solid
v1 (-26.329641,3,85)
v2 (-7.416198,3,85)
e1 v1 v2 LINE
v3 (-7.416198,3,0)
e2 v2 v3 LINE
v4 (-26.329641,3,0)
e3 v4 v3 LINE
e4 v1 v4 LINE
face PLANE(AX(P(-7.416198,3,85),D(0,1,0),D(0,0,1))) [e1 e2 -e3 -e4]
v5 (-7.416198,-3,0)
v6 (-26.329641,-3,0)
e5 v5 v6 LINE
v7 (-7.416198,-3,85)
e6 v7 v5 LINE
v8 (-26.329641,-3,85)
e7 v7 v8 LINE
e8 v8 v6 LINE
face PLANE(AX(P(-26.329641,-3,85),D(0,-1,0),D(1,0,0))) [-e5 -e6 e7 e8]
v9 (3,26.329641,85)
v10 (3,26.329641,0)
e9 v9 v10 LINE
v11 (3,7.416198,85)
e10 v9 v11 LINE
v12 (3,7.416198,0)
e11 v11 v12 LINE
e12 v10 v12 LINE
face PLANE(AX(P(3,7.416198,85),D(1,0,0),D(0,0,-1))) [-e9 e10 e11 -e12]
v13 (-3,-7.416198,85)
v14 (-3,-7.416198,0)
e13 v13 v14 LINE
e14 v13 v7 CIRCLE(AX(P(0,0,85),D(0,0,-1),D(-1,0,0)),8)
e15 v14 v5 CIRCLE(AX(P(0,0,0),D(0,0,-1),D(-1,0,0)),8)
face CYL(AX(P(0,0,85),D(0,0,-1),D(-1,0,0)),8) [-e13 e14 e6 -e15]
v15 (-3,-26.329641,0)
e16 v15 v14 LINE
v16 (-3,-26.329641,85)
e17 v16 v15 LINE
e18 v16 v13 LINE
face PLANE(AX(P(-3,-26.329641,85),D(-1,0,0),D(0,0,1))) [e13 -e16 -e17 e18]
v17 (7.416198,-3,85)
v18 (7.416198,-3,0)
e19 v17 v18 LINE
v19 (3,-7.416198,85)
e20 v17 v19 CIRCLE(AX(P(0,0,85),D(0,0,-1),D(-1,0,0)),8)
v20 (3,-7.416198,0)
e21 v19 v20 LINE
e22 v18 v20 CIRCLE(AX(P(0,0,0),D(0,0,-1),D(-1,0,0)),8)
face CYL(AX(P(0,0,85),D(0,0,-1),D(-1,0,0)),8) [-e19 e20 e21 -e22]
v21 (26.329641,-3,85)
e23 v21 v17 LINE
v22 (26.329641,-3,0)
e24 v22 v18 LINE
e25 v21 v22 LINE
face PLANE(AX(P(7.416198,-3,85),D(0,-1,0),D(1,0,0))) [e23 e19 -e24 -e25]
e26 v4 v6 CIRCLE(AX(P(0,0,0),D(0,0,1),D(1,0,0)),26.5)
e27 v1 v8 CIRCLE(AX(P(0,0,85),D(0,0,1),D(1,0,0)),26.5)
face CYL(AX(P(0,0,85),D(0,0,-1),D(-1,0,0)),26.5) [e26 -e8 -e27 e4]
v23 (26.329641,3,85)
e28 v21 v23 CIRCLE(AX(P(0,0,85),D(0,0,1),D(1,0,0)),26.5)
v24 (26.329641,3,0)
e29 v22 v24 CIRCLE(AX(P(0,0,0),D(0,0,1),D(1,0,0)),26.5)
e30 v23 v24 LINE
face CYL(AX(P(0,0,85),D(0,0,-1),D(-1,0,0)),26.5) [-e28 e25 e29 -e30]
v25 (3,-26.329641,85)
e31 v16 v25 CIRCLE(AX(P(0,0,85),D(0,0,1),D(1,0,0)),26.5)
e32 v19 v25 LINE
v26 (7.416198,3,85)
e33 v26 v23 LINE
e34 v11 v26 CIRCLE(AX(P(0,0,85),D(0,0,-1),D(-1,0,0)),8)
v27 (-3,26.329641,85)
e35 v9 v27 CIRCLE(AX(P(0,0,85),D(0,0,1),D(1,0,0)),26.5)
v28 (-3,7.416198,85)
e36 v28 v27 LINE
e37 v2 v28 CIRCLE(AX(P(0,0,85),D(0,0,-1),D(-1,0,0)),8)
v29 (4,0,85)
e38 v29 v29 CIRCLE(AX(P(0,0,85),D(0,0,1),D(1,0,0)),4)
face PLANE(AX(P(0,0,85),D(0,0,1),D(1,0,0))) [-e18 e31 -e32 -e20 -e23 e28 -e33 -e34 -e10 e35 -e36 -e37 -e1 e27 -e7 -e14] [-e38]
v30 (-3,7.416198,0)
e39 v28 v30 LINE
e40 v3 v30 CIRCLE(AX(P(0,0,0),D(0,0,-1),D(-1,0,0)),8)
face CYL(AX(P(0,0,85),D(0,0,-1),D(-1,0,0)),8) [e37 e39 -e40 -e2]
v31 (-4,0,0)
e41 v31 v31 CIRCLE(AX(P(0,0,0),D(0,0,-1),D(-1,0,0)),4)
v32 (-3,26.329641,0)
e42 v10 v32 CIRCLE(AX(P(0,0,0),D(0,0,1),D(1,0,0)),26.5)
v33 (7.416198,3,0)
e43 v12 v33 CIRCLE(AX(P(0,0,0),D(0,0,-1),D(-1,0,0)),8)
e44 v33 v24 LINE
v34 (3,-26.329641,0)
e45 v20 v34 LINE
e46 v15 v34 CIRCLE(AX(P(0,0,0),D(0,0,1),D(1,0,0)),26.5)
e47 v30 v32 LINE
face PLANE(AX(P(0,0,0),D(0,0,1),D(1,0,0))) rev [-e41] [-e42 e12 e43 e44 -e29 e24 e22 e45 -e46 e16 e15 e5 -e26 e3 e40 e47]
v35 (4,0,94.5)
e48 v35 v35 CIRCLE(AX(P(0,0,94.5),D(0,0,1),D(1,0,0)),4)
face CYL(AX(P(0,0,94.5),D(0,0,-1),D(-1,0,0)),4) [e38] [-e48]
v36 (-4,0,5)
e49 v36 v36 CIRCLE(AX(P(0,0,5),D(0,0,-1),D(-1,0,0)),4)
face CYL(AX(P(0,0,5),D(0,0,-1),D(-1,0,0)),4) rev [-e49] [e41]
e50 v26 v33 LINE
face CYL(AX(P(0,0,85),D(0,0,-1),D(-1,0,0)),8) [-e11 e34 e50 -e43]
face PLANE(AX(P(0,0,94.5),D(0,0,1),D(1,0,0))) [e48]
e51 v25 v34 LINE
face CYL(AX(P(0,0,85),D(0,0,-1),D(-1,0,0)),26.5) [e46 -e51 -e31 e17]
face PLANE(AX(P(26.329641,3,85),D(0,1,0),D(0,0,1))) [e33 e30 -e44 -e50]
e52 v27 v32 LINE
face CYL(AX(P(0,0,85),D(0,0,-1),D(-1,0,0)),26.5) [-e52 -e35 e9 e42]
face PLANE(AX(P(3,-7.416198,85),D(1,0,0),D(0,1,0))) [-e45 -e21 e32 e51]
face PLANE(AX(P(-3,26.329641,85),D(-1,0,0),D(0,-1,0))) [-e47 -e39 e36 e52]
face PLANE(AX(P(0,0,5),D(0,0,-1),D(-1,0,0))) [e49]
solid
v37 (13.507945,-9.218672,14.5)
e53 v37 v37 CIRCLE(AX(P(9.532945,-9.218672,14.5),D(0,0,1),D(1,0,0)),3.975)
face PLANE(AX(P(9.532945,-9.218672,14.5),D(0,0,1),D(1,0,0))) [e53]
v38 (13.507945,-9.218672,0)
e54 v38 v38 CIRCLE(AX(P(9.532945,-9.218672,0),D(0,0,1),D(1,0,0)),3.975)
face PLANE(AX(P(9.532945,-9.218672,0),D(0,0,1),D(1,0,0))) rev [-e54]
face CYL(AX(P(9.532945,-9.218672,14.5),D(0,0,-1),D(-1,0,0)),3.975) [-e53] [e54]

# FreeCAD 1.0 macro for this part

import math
import FreeCAD as App
import Part
import Sketcher
from FreeCAD import Vector


def add_polygon(sketch, points):
    """Adds a closed chain of lines whose ends are joined by coincident constraints."""
    first, n = sketch.GeometryCount, len(points)
    for a, b in zip(points, points[1:] + points[:1]):
        sketch.addGeometry(Part.LineSegment(App.Vector(*a, 0), App.Vector(*b, 0)), False)
    for i in range(n):
        sketch.addConstraint(Sketcher.Constraint("Coincident", first + i, 2, first + (i + 1) % n, 1))

doc = App.newDocument("Part")
body = doc.addObject("PartDesign::Body", "Body")

# Sketch on XY plane
sketch1 = doc.addObject("Sketcher::SketchObject", "Sketch")
body.addObject(sketch1)
sketch1.AttachmentSupport = (doc.XY_Plane, [""])
sketch1.MapMode = "FlatFace"
sketch1.addGeometry(Part.Circle(Vector(0, 0, 0), Vector(0, 0, 1), 26.5), False)
sketch1.addConstraint([
    Sketcher.Constraint("Coincident", 0, 3, -1, 1),
    Sketcher.Constraint("Diameter", 0, 53.0),
])
pad1 = doc.addObject("PartDesign::Pad", "Pad")
body.addObject(pad1)
pad1.Profile = sketch1
pad1.Length = 85

# Sketch on XY plane
sketch2 = doc.addObject("Sketcher::SketchObject", "Sketch001")
body.addObject(sketch2)
sketch2.AttachmentSupport = (doc.XY_Plane, [""])
sketch2.MapMode = "FlatFace"
sketch2.addGeometry(Part.Circle(Vector(0, 0, 0), Vector(0, 0, 1), 4), False)
sketch2.addConstraint([
    Sketcher.Constraint("Coincident", 0, 3, -1, 1),
    Sketcher.Constraint("Diameter", 0, 8.0),
])
pocket1 = doc.addObject("PartDesign::Pocket", "Pocket")
body.addObject(pocket1)
pocket1.Profile = sketch2
pocket1.Length = 5
pocket1.Reversed = True

# Sketch on XY plane
sketch3 = doc.addObject("Sketcher::SketchObject", "Sketch002")
body.addObject(sketch3)
sketch3.AttachmentSupport = (doc.XY_Plane, [""])
sketch3.MapMode = "FlatFace"
add_polygon(sketch3, [(38.833, 38.833), (38.833, -38.833), (-38.833, -38.833), (-38.833, 38.833)])  # lines 0-3
sketch3.addGeometry(Part.ArcOfCircle(Part.Circle(Vector(0, 0, 0), Vector(0, 0, 1), 26.5), math.radians(-6.50025), math.radians(6.50025)), False)  # 4
sketch3.addGeometry(Part.LineSegment(Vector(26.329641, 3, 0), Vector(7.416198, 3, 0)), False)  # 5
sketch3.addGeometry(Part.ArcOfCircle(Part.Circle(Vector(0, 0, 0), Vector(0, 0, 1), 8), math.radians(22.024313), math.radians(67.975687)), False)  # 6
sketch3.addGeometry(Part.LineSegment(Vector(3, 7.416198, 0), Vector(3, 26.329641, 0)), False)  # 7
sketch3.addGeometry(Part.ArcOfCircle(Part.Circle(Vector(0, 0, 0), Vector(0, 0, 1), 26.5), math.radians(83.49975), math.radians(96.50025)), False)  # 8
sketch3.addGeometry(Part.LineSegment(Vector(-3, 26.329641, 0), Vector(-3, 7.416198, 0)), False)  # 9
sketch3.addGeometry(Part.ArcOfCircle(Part.Circle(Vector(0, 0, 0), Vector(0, 0, 1), 8), math.radians(112.024313), math.radians(157.975687)), False)  # 10
sketch3.addGeometry(Part.LineSegment(Vector(-7.416198, 3, 0), Vector(-26.329641, 3, 0)), False)  # 11
sketch3.addGeometry(Part.ArcOfCircle(Part.Circle(Vector(0, 0, 0), Vector(0, 0, 1), 26.5), math.radians(173.49975), math.radians(186.50025)), False)  # 12
sketch3.addGeometry(Part.LineSegment(Vector(-26.329641, -3, 0), Vector(-7.416198, -3, 0)), False)  # 13
sketch3.addGeometry(Part.ArcOfCircle(Part.Circle(Vector(0, 0, 0), Vector(0, 0, 1), 8), math.radians(-157.975687), math.radians(-112.024313)), False)  # 14
sketch3.addGeometry(Part.LineSegment(Vector(-3, -7.416198, 0), Vector(-3, -26.329641, 0)), False)  # 15
sketch3.addGeometry(Part.ArcOfCircle(Part.Circle(Vector(0, 0, 0), Vector(0, 0, 1), 26.5), math.radians(-96.50025), math.radians(-83.49975)), False)  # 16
sketch3.addGeometry(Part.LineSegment(Vector(3, -26.329641, 0), Vector(3, -7.416198, 0)), False)  # 17
sketch3.addGeometry(Part.ArcOfCircle(Part.Circle(Vector(0, 0, 0), Vector(0, 0, 1), 8), math.radians(-67.975687), math.radians(-22.024313)), False)  # 18
sketch3.addGeometry(Part.LineSegment(Vector(7.416198, -3, 0), Vector(26.329641, -3, 0)), False)  # 19
sketch3.addConstraint([
    Sketcher.Constraint("Coincident", 4, 2, 5, 1),
    Sketcher.Constraint("Coincident", 5, 2, 6, 1),
    Sketcher.Constraint("Coincident", 6, 2, 7, 1),
    Sketcher.Constraint("Coincident", 7, 2, 8, 1),
    Sketcher.Constraint("Coincident", 8, 2, 9, 1),
    Sketcher.Constraint("Coincident", 9, 2, 10, 1),
    Sketcher.Constraint("Coincident", 10, 2, 11, 1),
    Sketcher.Constraint("Coincident", 11, 2, 12, 1),
    Sketcher.Constraint("Coincident", 12, 2, 13, 1),
    Sketcher.Constraint("Coincident", 13, 2, 14, 1),
    Sketcher.Constraint("Coincident", 14, 2, 15, 1),
    Sketcher.Constraint("Coincident", 15, 2, 16, 1),
    Sketcher.Constraint("Coincident", 16, 2, 17, 1),
    Sketcher.Constraint("Coincident", 17, 2, 18, 1),
    Sketcher.Constraint("Coincident", 18, 2, 19, 1),
    Sketcher.Constraint("Coincident", 19, 2, 4, 1),
    Sketcher.Constraint("Vertical", 0),
    Sketcher.Constraint("Horizontal", 1),
    Sketcher.Constraint("Vertical", 2),
    Sketcher.Constraint("Horizontal", 3),
    Sketcher.Constraint("Horizontal", 5),
    Sketcher.Constraint("Vertical", 7),
    Sketcher.Constraint("Vertical", 9),
    Sketcher.Constraint("Horizontal", 11),
    Sketcher.Constraint("Horizontal", 13),
    Sketcher.Constraint("Vertical", 15),
    Sketcher.Constraint("Vertical", 17),
    Sketcher.Constraint("Horizontal", 19),
    Sketcher.Constraint("Coincident", 4, 3, -1, 1),
    Sketcher.Constraint("Coincident", 6, 3, -1, 1),
    Sketcher.Constraint("Coincident", 8, 3, -1, 1),
    Sketcher.Constraint("Coincident", 10, 3, -1, 1),
    Sketcher.Constraint("Coincident", 12, 3, -1, 1),
    Sketcher.Constraint("Coincident", 14, 3, -1, 1),
    Sketcher.Constraint("Coincident", 16, 3, -1, 1),
    Sketcher.Constraint("Coincident", 18, 3, -1, 1),
    Sketcher.Constraint("Equal", 4, 8),
    Sketcher.Constraint("Equal", 6, 10),
    Sketcher.Constraint("Equal", 8, 12),
    Sketcher.Constraint("Equal", 10, 14),
    Sketcher.Constraint("Equal", 12, 16),
    Sketcher.Constraint("Equal", 14, 18),
    Sketcher.Constraint("Symmetric", 0, 2, 2, 2, -1, 1),
    Sketcher.Constraint("Horizontal", 7, 2, 8, 2),
    Sketcher.Constraint("Horizontal", 5, 2, 10, 2),
    Sketcher.Constraint("Horizontal", 15, 2, 16, 2),
    Sketcher.Constraint("Horizontal", 13, 2, 18, 2),
    Sketcher.Constraint("Vertical", 11, 2, 12, 2),
    Sketcher.Constraint("Vertical", 9, 2, 14, 2),
    Sketcher.Constraint("Equal", 3, 0),
    Sketcher.Constraint("Equal", 19, 7),
    Sketcher.Constraint("Radius", 6, 8.0),
    Sketcher.Constraint("Radius", 4, 26.5),
    Sketcher.Constraint("DistanceY", -1, 1, 4, 2, 3.0),
    Sketcher.Constraint("DistanceX", 1, 2, 1, 1, 77.666),
])
pocket2 = doc.addObject("PartDesign::Pocket", "Pocket001")
body.addObject(pocket2)
pocket2.Profile = sketch3
pocket2.Type = "ThroughAll"
pocket2.Reversed = True

# Sketch on XY plane
sketch4 = doc.addObject("Sketcher::SketchObject", "Sketch003")
body.addObject(sketch4)
sketch4.AttachmentSupport = (doc.XY_Plane, [""])
sketch4.MapMode = "FlatFace"
sketch4.AttachmentOffset = App.Placement(Vector(0, 0, 85), App.Rotation())
sketch4.addGeometry(Part.Circle(Vector(0, 0, 0), Vector(0, 0, 1), 4), False)
sketch4.addConstraint([
    Sketcher.Constraint("Coincident", 0, 3, -1, 1),
    Sketcher.Constraint("Diameter", 0, 8.0),
])
pad2 = doc.addObject("PartDesign::Pad", "Pad001")
body.addObject(pad2)
pad2.Profile = sketch4
pad2.Length = 9.5
body2 = doc.addObject("PartDesign::Body", "Body001")

# Sketch on XY plane
sketch5 = doc.addObject("Sketcher::SketchObject", "Sketch004")
body2.addObject(sketch5)
sketch5.AttachmentSupport = (doc.getObject("XY_Plane001"), [""])
sketch5.MapMode = "FlatFace"
sketch5.addGeometry(Part.Circle(Vector(9.532945, -9.218672, 0), Vector(0, 0, 1), 3.975), False)
sketch5.addConstraint([
    Sketcher.Constraint("Diameter", 0, 7.95),
    Sketcher.Constraint("DistanceX", -1, 1, 0, 3, 9.532945),
    Sketcher.Constraint("DistanceY", 0, 3, -1, 1, 9.218672),
])
pad3 = doc.addObject("PartDesign::Pad", "Pad002")
body2.addObject(pad3)
pad3.Profile = sketch5
pad3.Length = 14.5

doc.recompute()
